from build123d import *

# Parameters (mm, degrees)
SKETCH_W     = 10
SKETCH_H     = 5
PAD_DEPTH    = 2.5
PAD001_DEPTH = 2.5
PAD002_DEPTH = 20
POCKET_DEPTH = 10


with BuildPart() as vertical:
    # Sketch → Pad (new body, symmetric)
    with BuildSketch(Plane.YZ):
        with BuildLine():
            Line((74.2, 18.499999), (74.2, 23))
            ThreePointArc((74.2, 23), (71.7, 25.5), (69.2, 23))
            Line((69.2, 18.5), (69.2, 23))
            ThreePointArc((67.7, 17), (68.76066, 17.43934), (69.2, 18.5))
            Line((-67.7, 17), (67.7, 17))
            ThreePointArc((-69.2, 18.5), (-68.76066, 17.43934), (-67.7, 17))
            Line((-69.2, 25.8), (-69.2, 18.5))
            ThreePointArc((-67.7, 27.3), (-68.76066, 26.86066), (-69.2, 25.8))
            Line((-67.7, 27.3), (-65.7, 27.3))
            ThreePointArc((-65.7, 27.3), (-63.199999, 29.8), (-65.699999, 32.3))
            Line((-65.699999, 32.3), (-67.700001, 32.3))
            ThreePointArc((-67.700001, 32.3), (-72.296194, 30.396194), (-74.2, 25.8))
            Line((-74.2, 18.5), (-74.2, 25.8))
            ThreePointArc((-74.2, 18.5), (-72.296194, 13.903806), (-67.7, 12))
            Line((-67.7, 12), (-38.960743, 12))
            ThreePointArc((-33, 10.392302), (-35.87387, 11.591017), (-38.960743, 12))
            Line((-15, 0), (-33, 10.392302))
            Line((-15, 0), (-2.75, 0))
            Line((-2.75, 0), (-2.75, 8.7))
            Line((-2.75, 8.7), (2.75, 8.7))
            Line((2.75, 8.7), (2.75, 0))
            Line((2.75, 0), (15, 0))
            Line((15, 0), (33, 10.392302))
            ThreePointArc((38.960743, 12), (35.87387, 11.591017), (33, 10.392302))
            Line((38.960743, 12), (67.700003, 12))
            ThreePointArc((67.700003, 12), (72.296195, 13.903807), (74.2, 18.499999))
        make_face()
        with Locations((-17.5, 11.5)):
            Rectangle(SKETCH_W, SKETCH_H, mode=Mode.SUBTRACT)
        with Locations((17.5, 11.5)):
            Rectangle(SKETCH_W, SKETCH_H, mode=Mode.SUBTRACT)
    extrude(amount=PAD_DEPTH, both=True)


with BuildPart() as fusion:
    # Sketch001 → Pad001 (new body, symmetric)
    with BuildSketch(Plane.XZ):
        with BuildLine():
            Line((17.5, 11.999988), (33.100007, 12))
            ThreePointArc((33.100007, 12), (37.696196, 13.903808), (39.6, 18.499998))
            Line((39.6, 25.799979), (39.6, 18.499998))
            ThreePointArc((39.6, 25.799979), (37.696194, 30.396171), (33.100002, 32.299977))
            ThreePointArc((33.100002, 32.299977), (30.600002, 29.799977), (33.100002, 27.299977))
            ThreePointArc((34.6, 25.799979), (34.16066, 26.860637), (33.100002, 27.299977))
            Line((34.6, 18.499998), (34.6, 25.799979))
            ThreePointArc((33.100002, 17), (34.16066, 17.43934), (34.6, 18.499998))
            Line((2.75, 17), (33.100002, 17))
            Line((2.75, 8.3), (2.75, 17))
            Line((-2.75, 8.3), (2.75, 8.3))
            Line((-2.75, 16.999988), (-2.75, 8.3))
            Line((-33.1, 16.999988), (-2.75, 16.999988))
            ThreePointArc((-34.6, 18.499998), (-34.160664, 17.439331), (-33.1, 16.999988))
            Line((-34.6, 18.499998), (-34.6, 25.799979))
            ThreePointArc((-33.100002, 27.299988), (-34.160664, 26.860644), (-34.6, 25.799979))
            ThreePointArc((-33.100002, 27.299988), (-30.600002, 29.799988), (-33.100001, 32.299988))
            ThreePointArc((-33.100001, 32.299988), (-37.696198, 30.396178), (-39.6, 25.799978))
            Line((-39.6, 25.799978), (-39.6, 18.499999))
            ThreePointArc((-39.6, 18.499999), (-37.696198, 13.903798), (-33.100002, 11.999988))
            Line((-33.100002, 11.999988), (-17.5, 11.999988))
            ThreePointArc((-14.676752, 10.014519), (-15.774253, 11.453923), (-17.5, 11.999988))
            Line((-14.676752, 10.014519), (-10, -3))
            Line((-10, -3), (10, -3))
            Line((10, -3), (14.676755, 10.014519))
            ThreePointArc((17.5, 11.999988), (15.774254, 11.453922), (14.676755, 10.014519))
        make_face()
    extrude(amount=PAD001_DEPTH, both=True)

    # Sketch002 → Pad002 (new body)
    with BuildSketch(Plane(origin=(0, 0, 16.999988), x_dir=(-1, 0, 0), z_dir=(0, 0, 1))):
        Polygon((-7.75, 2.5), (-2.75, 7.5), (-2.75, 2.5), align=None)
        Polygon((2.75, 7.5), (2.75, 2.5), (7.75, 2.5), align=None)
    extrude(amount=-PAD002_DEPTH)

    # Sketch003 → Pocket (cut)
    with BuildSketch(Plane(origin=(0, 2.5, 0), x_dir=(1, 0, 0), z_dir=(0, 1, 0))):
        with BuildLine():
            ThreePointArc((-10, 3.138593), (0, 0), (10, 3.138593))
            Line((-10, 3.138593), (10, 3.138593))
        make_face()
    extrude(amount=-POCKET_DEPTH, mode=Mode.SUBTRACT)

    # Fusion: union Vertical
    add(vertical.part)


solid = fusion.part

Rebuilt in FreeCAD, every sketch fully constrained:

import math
import FreeCAD as App
import Part
import Sketcher

V = App.Vector
Q = App.Units.Quantity


def add_polygon(sketch, points):
    """Adds a closed chain of lines whose ends are joined by coincident constraints."""
    first, n = sketch.GeometryCount, len(points)
    for a, b in zip(points, points[1:] + points[:1]):
        sketch.addGeometry(Part.LineSegment(App.Vector(*a, 0), App.Vector(*b, 0)), False)
    for i in range(n):
        sketch.addConstraint(Sketcher.Constraint("Coincident", first + i, 2, first + (i + 1) % n, 1))

doc = App.newDocument("Part")
body = doc.addObject("PartDesign::Body", "Body")

# Sketch on YZ plane
sketch1 = doc.addObject("Sketcher::SketchObject", "Sketch")
body.addObject(sketch1)
sketch1.AttachmentSupport = (doc.YZ_Plane, [""])
sketch1.MapMode = "FlatFace"
sketch1.addGeometry(Part.LineSegment(V(74.2, 18.5, 0), V(74.2, 23, 0)), False)  # 0
sketch1.addGeometry(Part.ArcOfCircle(Part.Circle(V(71.7, 23, 0), V(0, 0, 1), 2.5), math.radians(0), math.radians(180)), False)  # 1
sketch1.addGeometry(Part.LineSegment(V(69.2, 23, 0), V(69.2, 18.5, 0)), False)  # 2
sketch1.addGeometry(Part.ArcOfCircle(Part.Circle(V(67.7, 18.5, 0), V(0, 0, 1), 1.5), math.radians(-90), math.radians(0)), False)  # 3
sketch1.addGeometry(Part.LineSegment(V(67.7, 17, 0), V(-67.7, 17, 0)), False)  # 4
sketch1.addGeometry(Part.ArcOfCircle(Part.Circle(V(-67.7, 18.5, 0), V(0, 0, 1), 1.5), math.radians(-180), math.radians(-90)), False)  # 5
sketch1.addGeometry(Part.LineSegment(V(-69.2, 18.5, 0), V(-69.2, 25.8, 0)), False)  # 6
sketch1.addGeometry(Part.ArcOfCircle(Part.Circle(V(-67.7, 25.8, 0), V(0, 0, 1), 1.5), math.radians(90), math.radians(180)), False)  # 7
sketch1.addGeometry(Part.LineSegment(V(-67.7, 27.3, 0), V(-65.7, 27.3, 0)), False)  # 8
sketch1.addGeometry(Part.ArcOfCircle(Part.Circle(V(-65.7, 29.8, 0), V(0, 0, 1), 2.5), math.radians(-90), math.radians(90)), False)  # 9
sketch1.addGeometry(Part.LineSegment(V(-65.7, 32.3, 0), V(-67.7, 32.3, 0)), False)  # 10
sketch1.addGeometry(Part.ArcOfCircle(Part.Circle(V(-67.7, 25.8, 0), V(0, 0, 1), 6.5), math.radians(90), math.radians(180)), False)  # 11
sketch1.addGeometry(Part.LineSegment(V(-74.2, 25.8, 0), V(-74.2, 18.5, 0)), False)  # 12
sketch1.addGeometry(Part.ArcOfCircle(Part.Circle(V(-67.7, 18.5, 0), V(0, 0, 1), 6.5), math.radians(-180), math.radians(-90)), False)  # 13
sketch1.addGeometry(Part.LineSegment(V(-67.7, 12, 0), V(-39, 12, 0)), False)  # 14
sketch1.addGeometry(Part.ArcOfCircle(Part.Circle(V(-39, 0.1, 0), V(0, 0, 1), 11.9), math.radians(60), math.radians(90)), False)  # 15
sketch1.addGeometry(Part.LineSegment(V(-33, 10.4, 0), V(-15, 0, 0)), False)  # 16
sketch1.addGeometry(Part.LineSegment(V(-15, 0, 0), V(-2.8, 0, 0)), False)  # 17
sketch1.addGeometry(Part.LineSegment(V(-2.8, 0, 0), V(-2.8, 8.7, 0)), False)  # 18
sketch1.addGeometry(Part.LineSegment(V(-2.8, 8.7, 0), V(2.8, 8.7, 0)), False)  # 19
sketch1.addGeometry(Part.LineSegment(V(2.8, 8.7, 0), V(2.8, 0, 0)), False)  # 20
sketch1.addGeometry(Part.LineSegment(V(2.8, 0, 0), V(15, 0, 0)), False)  # 21
sketch1.addGeometry(Part.LineSegment(V(15, 0, 0), V(33, 10.4, 0)), False)  # 22
sketch1.addGeometry(Part.ArcOfCircle(Part.Circle(V(39, 0.1, 0), V(0, 0, 1), 11.9), math.radians(90), math.radians(120)), False)  # 23
sketch1.addGeometry(Part.LineSegment(V(39, 12, 0), V(67.7, 12, 0)), False)  # 24
sketch1.addGeometry(Part.ArcOfCircle(Part.Circle(V(67.7, 18.5, 0), V(0, 0, 1), 6.5), math.radians(-90), math.radians(0)), False)  # 25
add_polygon(sketch1, [(-12.5, 9), (-22.5, 9), (-22.5, 14), (-12.5, 14)])  # lines 26-29
add_polygon(sketch1, [(22.5, 9), (12.5, 9), (12.5, 14), (22.5, 14)])  # lines 30-33
sketch1.addConstraint(Sketcher.Constraint("Tangent", 0, 2, 1, 1))
sketch1.addConstraint(Sketcher.Constraint("Tangent", 1, 2, 2, 1))
sketch1.addConstraint(Sketcher.Constraint("Tangent", 2, 2, 3, 2))
sketch1.addConstraint(Sketcher.Constraint("Tangent", 3, 1, 4, 1))
sketch1.addConstraint(Sketcher.Constraint("Tangent", 4, 2, 5, 2))
sketch1.addConstraint(Sketcher.Constraint("Tangent", 5, 1, 6, 1))
sketch1.addConstraint(Sketcher.Constraint("Tangent", 6, 2, 7, 2))
sketch1.addConstraint(Sketcher.Constraint("Tangent", 7, 1, 8, 1))
sketch1.addConstraint(Sketcher.Constraint("Tangent", 8, 2, 9, 1))
sketch1.addConstraint(Sketcher.Constraint("Tangent", 9, 2, 10, 1))
sketch1.addConstraint(Sketcher.Constraint("Tangent", 10, 2, 11, 1))
sketch1.addConstraint(Sketcher.Constraint("Tangent", 11, 2, 12, 1))
sketch1.addConstraint(Sketcher.Constraint("Tangent", 12, 2, 13, 1))
sketch1.addConstraint(Sketcher.Constraint("Tangent", 13, 2, 14, 1))
sketch1.addConstraint(Sketcher.Constraint("Coincident", 14, 2, 15, 2))
sketch1.addConstraint(Sketcher.Constraint("Coincident", 15, 1, 16, 1))
sketch1.addConstraint(Sketcher.Constraint("Coincident", 16, 2, 17, 1))
sketch1.addConstraint(Sketcher.Constraint("Coincident", 17, 2, 18, 1))
sketch1.addConstraint(Sketcher.Constraint("Coincident", 18, 2, 19, 1))
sketch1.addConstraint(Sketcher.Constraint("Coincident", 19, 2, 20, 1))
sketch1.addConstraint(Sketcher.Constraint("Coincident", 20, 2, 21, 1))
sketch1.addConstraint(Sketcher.Constraint("Coincident", 21, 2, 22, 1))
sketch1.addConstraint(Sketcher.Constraint("Coincident", 22, 2, 23, 2))
sketch1.addConstraint(Sketcher.Constraint("Coincident", 23, 1, 24, 1))
sketch1.addConstraint(Sketcher.Constraint("Tangent", 24, 2, 25, 1))
sketch1.addConstraint(Sketcher.Constraint("Tangent", 25, 2, 0, 1))
sketch1.addConstraint(Sketcher.Constraint("Vertical", 0))
sketch1.addConstraint(Sketcher.Constraint("Vertical", 2))
sketch1.addConstraint(Sketcher.Constraint("Horizontal", 4))
sketch1.addConstraint(Sketcher.Constraint("Vertical", 6))
sketch1.addConstraint(Sketcher.Constraint("Horizontal", 8))
sketch1.addConstraint(Sketcher.Constraint("Horizontal", 10))
sketch1.addConstraint(Sketcher.Constraint("Vertical", 12))
sketch1.addConstraint(Sketcher.Constraint("Horizontal", 14))
sketch1.addConstraint(Sketcher.Constraint("Horizontal", 17))
sketch1.addConstraint(Sketcher.Constraint("Vertical", 18))
sketch1.addConstraint(Sketcher.Constraint("Horizontal", 19))
sketch1.addConstraint(Sketcher.Constraint("Vertical", 20))
sketch1.addConstraint(Sketcher.Constraint("Horizontal", 21))
sketch1.addConstraint(Sketcher.Constraint("Horizontal", 24))
sketch1.addConstraint(Sketcher.Constraint("Horizontal", 26))
sketch1.addConstraint(Sketcher.Constraint("Vertical", 27))
sketch1.addConstraint(Sketcher.Constraint("Horizontal", 28))
sketch1.addConstraint(Sketcher.Constraint("Vertical", 29))
sketch1.addConstraint(Sketcher.Constraint("Horizontal", 30))
sketch1.addConstraint(Sketcher.Constraint("Vertical", 31))
sketch1.addConstraint(Sketcher.Constraint("Horizontal", 32))
sketch1.addConstraint(Sketcher.Constraint("Vertical", 33))
sketch1.addConstraint(Sketcher.Constraint("Coincident", 11, 3, 7, 3))
sketch1.addConstraint(Sketcher.Constraint("Coincident", 13, 3, 5, 3))
sketch1.addConstraint(Sketcher.Constraint("Coincident", 25, 3, 3, 3))
sketch1.addConstraint(Sketcher.Constraint("Equal", 3, 5))
sketch1.addConstraint(Sketcher.Constraint("Equal", 5, 7))
sketch1.addConstraint(Sketcher.Constraint("Equal", 1, 9))
sketch1.addConstraint(Sketcher.Constraint("Equal", 15, 23))
sketch1.addConstraint(Sketcher.Constraint("Symmetric", 17, 2, 20, 2, -1, 1))
sketch1.addConstraint(Sketcher.Constraint("Symmetric", 16, 2, 21, 2, -2))
sketch1.addConstraint(Sketcher.Constraint("Symmetric", 15, 1, 22, 2, -2))
sketch1.addConstraint(Sketcher.Constraint("Symmetric", 29, 2, 30, 2, -2))
sketch1.addConstraint(Sketcher.Constraint("Symmetric", 27, 2, 32, 2, -2))
sketch1.addConstraint(Sketcher.Constraint("Radius", 1, 2.5))
sketch1.addConstraint(Sketcher.Constraint("Radius", 3, 1.500001))
sketch1.addConstraint(Sketcher.Constraint("DistanceX", 8, 1, 8, 2, 2.0))
sketch1.addConstraint(Sketcher.Constraint("DistanceX", 26, 2, 26, 1, 10.0))
sketch1.addConstraint(Sketcher.Constraint("DistanceY", 27, 1, 27, 2, 5.0))
sketch1.addConstraint(Sketcher.Constraint("Angle", 16, Q("-29.999993 deg")))
sketch1.addConstraint(Sketcher.Constraint("DistanceX", 4, 2, 4, 1, 135.4))
sketch1.addConstraint(Sketcher.Constraint("DistanceX", 19, 1, 19, 2, 5.5))
sketch1.addConstraint(Sketcher.Constraint("DistanceY", 0, 1, 0, 2, 4.500001))
sketch1.addConstraint(Sketcher.Constraint("DistanceY", 6, 1, 6, 2, 7.3))
sketch1.addConstraint(Sketcher.Constraint("DistanceY", 18, 1, 18, 2, 8.7))
sketch1.addConstraint(Sketcher.Constraint("DistanceY", -1, 1, 1, 3, 23.0))
sketch1.addConstraint(Sketcher.Constraint("DistanceX", 15, 1, -1, 1, 33.0))
sketch1.addConstraint(Sketcher.Constraint("DistanceX", 16, 2, -1, 1, 15.0))
sketch1.addConstraint(Sketcher.Constraint("DistanceY", -1, 1, 26, 2, 9.0))
sketch1.addConstraint(Sketcher.Constraint("DistanceX", -1, 1, 1, 3, 71.7))
sketch1.addConstraint(Sketcher.Constraint("DistanceX", 26, 2, -1, 1, 22.5))
sketch1.addConstraint(Sketcher.Constraint("Radius", 15, 11.854044))
sketch1.addConstraint(Sketcher.Constraint("DistanceX", 24, 1, 24, 2, 28.73926))
sketch1.addConstraint(Sketcher.Constraint("DistanceX", 14, 1, 14, 2, 28.739257))
pad1 = doc.addObject("PartDesign::Pad", "Pad")
body.addObject(pad1)
pad1.Profile = sketch1
pad1.Length = 5
pad1.Midplane = True
body2 = doc.addObject("PartDesign::Body", "Body001")
body2.AllowCompound = True

# Sketch on XZ plane
sketch2 = doc.addObject("Sketcher::SketchObject", "Sketch001")
body2.addObject(sketch2)
sketch2.AttachmentSupport = (doc.getObject("XZ_Plane001"), [""])
sketch2.MapMode = "FlatFace"
sketch2.addGeometry(Part.LineSegment(V(17.5, 11.999988, 0), V(33.100007, 12, 0)), False)
sketch2.addGeometry(Part.ArcOfCircle(Part.Circle(V(33.1, 18.5, 0), V(0, 0, 1), 6.5), math.radians(-89.999936), math.radians(-0.00002)), False)
sketch2.addGeometry(Part.LineSegment(V(39.6, 18.499998, 0), V(39.6, 25.799979, 0)), False)
sketch2.addGeometry(Part.ArcOfCircle(Part.Circle(V(33.1, 25.799977, 0), V(0, 0, 1), 6.5), math.radians(0.00002), math.radians(89.99998)), False)
sketch2.addGeometry(Part.ArcOfCircle(Part.Circle(V(33.100002, 29.799977, 0), V(0, 0, 1), 2.5), math.radians(90), math.radians(270)), False)
sketch2.addGeometry(Part.ArcOfCircle(Part.Circle(V(33.099999, 25.799976, 0), V(0, 0, 1), 1.500001), math.radians(0.000099), math.radians(89.999901)), False)
sketch2.addGeometry(Part.LineSegment(V(34.6, 25.799979, 0), V(34.6, 18.499998, 0)), False)
sketch2.addGeometry(Part.ArcOfCircle(Part.Circle(V(33.099999, 18.500001, 0), V(0, 0, 1), 1.500001), math.radians(-89.999901), math.radians(-0.000099)), False)
sketch2.addGeometry(Part.LineSegment(V(33.100002, 17, 0), V(2.75, 17, 0)), False)
sketch2.addGeometry(Part.LineSegment(V(2.75, 17, 0), V(2.75, 8.3, 0)), False)
sketch2.addGeometry(Part.LineSegment(V(2.75, 8.3, 0), V(-2.75, 8.3, 0)), False)
sketch2.addGeometry(Part.LineSegment(V(-2.75, 8.3, 0), V(-2.75, 16.999988, 0)), False)
sketch2.addGeometry(Part.LineSegment(V(-2.75, 16.999988, 0), V(-33.1, 16.999988, 0)), False)
sketch2.addGeometry(Part.ArcOfCircle(Part.Circle(V(-33.100001, 18.499987, 0), V(0, 0, 1), 1.499999), math.radians(179.999575), math.radians(270.000043)), False)
sketch2.addGeometry(Part.LineSegment(V(-34.6, 18.499998, 0), V(-34.6, 25.799979, 0)), False)
sketch2.addGeometry(Part.ArcOfCircle(Part.Circle(V(-33.099999, 25.799987, 0), V(0, 0, 1), 1.500001), math.radians(90.000099), math.radians(180.000321)), False)
sketch2.addGeometry(Part.ArcOfCircle(Part.Circle(V(-33.100002, 29.799988, 0), V(0, 0, 1), 2.5), math.radians(-90), math.radians(89.999977)), False)
sketch2.addGeometry(Part.ArcOfCircle(Part.Circle(V(-33.1, 25.799988, 0), V(0, 0, 1), 6.5), math.radians(90.000011), math.radians(180.000086)), False)
sketch2.addGeometry(Part.LineSegment(V(-39.6, 25.799978, 0), V(-39.6, 18.499999, 0)), False)
sketch2.addGeometry(Part.ArcOfCircle(Part.Circle(V(-33.1, 18.499988, 0), V(0, 0, 1), 6.5), math.radians(179.999905), math.radians(269.99998)), False)
sketch2.addGeometry(Part.LineSegment(V(-33.100002, 11.999988, 0), V(-17.5, 11.999988, 0)), False)
sketch2.addGeometry(Part.ArcOfCircle(Part.Circle(V(-17.500001, 8.999987, 0), V(0, 0, 1), 3.000001), math.radians(19.765864), math.radians(89.99999)), False)
sketch2.addGeometry(Part.LineSegment(V(-14.676752, 10.014519, 0), V(-10, -3, 0)), False)
sketch2.addGeometry(Part.LineSegment(V(-10, -3, 0), V(10, -3, 0)), False)
sketch2.addGeometry(Part.LineSegment(V(10, -3, 0), V(14.676755, 10.014519, 0)), False)
sketch2.addGeometry(Part.ArcOfCircle(Part.Circle(V(17.500002, 8.999988, 0), V(0, 0, 1), 3), math.radians(90.000047), math.radians(160.234156)), False)
sketch2.addConstraint(Sketcher.Constraint("Coincident", 0, 2, 1, 1))
sketch2.addConstraint(Sketcher.Constraint("Coincident", 1, 2, 2, 1))
sketch2.addConstraint(Sketcher.Constraint("Coincident", 2, 2, 3, 1))
sketch2.addConstraint(Sketcher.Constraint("Coincident", 3, 2, 4, 1))
sketch2.addConstraint(Sketcher.Constraint("Coincident", 4, 2, 5, 2))
sketch2.addConstraint(Sketcher.Constraint("Coincident", 5, 1, 6, 1))
sketch2.addConstraint(Sketcher.Constraint("Coincident", 6, 2, 7, 2))
sketch2.addConstraint(Sketcher.Constraint("Coincident", 7, 1, 8, 1))
sketch2.addConstraint(Sketcher.Constraint("Coincident", 8, 2, 9, 1))
sketch2.addConstraint(Sketcher.Constraint("Coincident", 9, 2, 10, 1))
sketch2.addConstraint(Sketcher.Constraint("Coincident", 10, 2, 11, 1))
sketch2.addConstraint(Sketcher.Constraint("Coincident", 11, 2, 12, 1))
sketch2.addConstraint(Sketcher.Constraint("Coincident", 12, 2, 13, 2))
sketch2.addConstraint(Sketcher.Constraint("Coincident", 13, 1, 14, 1))
sketch2.addConstraint(Sketcher.Constraint("Coincident", 14, 2, 15, 2))
sketch2.addConstraint(Sketcher.Constraint("Coincident", 15, 1, 16, 1))
sketch2.addConstraint(Sketcher.Constraint("Coincident", 16, 2, 17, 1))
sketch2.addConstraint(Sketcher.Constraint("Coincident", 17, 2, 18, 1))
sketch2.addConstraint(Sketcher.Constraint("Coincident", 18, 2, 19, 1))
sketch2.addConstraint(Sketcher.Constraint("Coincident", 19, 2, 20, 1))
sketch2.addConstraint(Sketcher.Constraint("Coincident", 20, 2, 21, 2))
sketch2.addConstraint(Sketcher.Constraint("Coincident", 21, 1, 22, 1))
sketch2.addConstraint(Sketcher.Constraint("Coincident", 22, 2, 23, 1))
sketch2.addConstraint(Sketcher.Constraint("Coincident", 23, 2, 24, 1))
sketch2.addConstraint(Sketcher.Constraint("Coincident", 24, 2, 25, 2))
sketch2.addConstraint(Sketcher.Constraint("Coincident", 25, 1, 0, 1))
sketch2.addConstraint(Sketcher.Constraint("Vertical", 2))
sketch2.addConstraint(Sketcher.Constraint("Vertical", 6))
sketch2.addConstraint(Sketcher.Constraint("Horizontal", 8))
sketch2.addConstraint(Sketcher.Constraint("Vertical", 9))
sketch2.addConstraint(Sketcher.Constraint("Horizontal", 10))
sketch2.addConstraint(Sketcher.Constraint("Vertical", 11))
sketch2.addConstraint(Sketcher.Constraint("Horizontal", 12))
sketch2.addConstraint(Sketcher.Constraint("Vertical", 14))
sketch2.addConstraint(Sketcher.Constraint("Vertical", 18))
sketch2.addConstraint(Sketcher.Constraint("Horizontal", 20))
sketch2.addConstraint(Sketcher.Constraint("Horizontal", 23))
sketch2.addConstraint(Sketcher.Constraint("Coincident", 5, 3, 3, 3))
sketch2.addConstraint(Sketcher.Constraint("Coincident", 7, 3, 1, 3))
sketch2.addConstraint(Sketcher.Constraint("Coincident", 17, 3, 15, 3))
sketch2.addConstraint(Sketcher.Constraint("Coincident", 19, 3, 13, 3))
sketch2.addConstraint(Sketcher.Constraint("Radius", 21, 3.000001))
sketch2.addConstraint(Sketcher.Constraint("Radius", 25, 3.0))
sketch2.addConstraint(Sketcher.Constraint("Radius", 1, 6.5))
sketch2.addConstraint(Sketcher.Constraint("Radius", 3, 6.5))
sketch2.addConstraint(Sketcher.Constraint("Radius", 4, 2.5))
sketch2.addConstraint(Sketcher.Constraint("Radius", 13, 1.499999))
sketch2.addConstraint(Sketcher.Constraint("Radius", 15, 1.500001))
sketch2.addConstraint(Sketcher.Constraint("Radius", 16, 2.5))
sketch2.addConstraint(Sketcher.Constraint("DistanceX", 23, 1, 23, 2, 20.0))
sketch2.addConstraint(Sketcher.Constraint("DistanceX", 10, 2, 10, 1, 5.5))
sketch2.addConstraint(Sketcher.Constraint("DistanceY", 9, 2, 9, 1, 8.7))
sketch2.addConstraint(Sketcher.Constraint("DistanceY", -1, 1, 0, 2, 12.0))
sketch2.addConstraint(Sketcher.Constraint("DistanceX", 22, 2, -1, 1, 10.0))
sketch2.addConstraint(Sketcher.Constraint("DistanceY", 22, 2, -1, 1, 3.0))
sketch2.addConstraint(Sketcher.Constraint("DistanceY", 25, 3, 11, 2, 8.0))
sketch2.addConstraint(Sketcher.Constraint("DistanceX", 12, 2, 12, 1, 30.35))
sketch2.addConstraint(Sketcher.Constraint("DistanceX", -1, 1, 1, 3, 33.1))
sketch2.addConstraint(Sketcher.Constraint("DistanceX", 13, 3, -1, 1, 33.100001))
sketch2.addConstraint(Sketcher.Constraint("DistanceX", 21, 3, -1, 1, 17.500001))
sketch2.addConstraint(Sketcher.Constraint("DistanceY", -1, 1, 1, 2, 18.499998))
sketch2.addConstraint(Sketcher.Constraint("DistanceY", -1, 1, 6, 2, 18.499998))
sketch2.addConstraint(Sketcher.Constraint("DistanceX", 12, 2, -1, 1, 33.1))
sketch2.addConstraint(Sketcher.Constraint("DistanceY", -1, 1, 13, 1, 18.499998))
sketch2.addConstraint(Sketcher.Constraint("DistanceX", 16, 2, -1, 1, 33.100001))
sketch2.addConstraint(Sketcher.Constraint("DistanceY", -1, 1, 18, 2, 18.499999))
sketch2.addConstraint(Sketcher.Constraint("DistanceX", 20, 2, -1, 1, 17.5))
sketch2.addConstraint(Sketcher.Constraint("DistanceX", -1, 1, 25, 1, 17.5))
sketch2.addConstraint(Sketcher.Constraint("DistanceY", 13, 3, 15, 3, 7.300001))
sketch2.addConstraint(Sketcher.Constraint("DistanceX", 15, 3, 4, 3, 66.200001))
sketch2.addConstraint(Sketcher.Constraint("DistanceX", 16, 3, 5, 3, 66.200001))
sketch2.addConstraint(Sketcher.Constraint("DistanceX", 25, 3, 4, 3, 15.6))
sketch2.addConstraint(Sketcher.Constraint("DistanceX", 4, 2, 5, 1, 1.499998))
sketch2.addConstraint(Sketcher.Constraint("DistanceY", 2, 1, 2, 2, 7.299981))
sketch2.addConstraint(Sketcher.Constraint("DistanceY", 6, 2, 6, 1, 7.299981))
sketch2.addConstraint(Sketcher.Constraint("DistanceY", 14, 1, 14, 2, 7.299981))
sketch2.addConstraint(Sketcher.Constraint("DistanceY", 18, 2, 18, 1, 7.299979))
sketch2.addConstraint(Sketcher.Constraint("DistanceX", 8, 2, 8, 1, 30.350002))
sketch2.addConstraint(Sketcher.Constraint("DistanceX", 20, 1, 20, 2, 15.600002))
sketch2.addConstraint(Sketcher.Constraint("DistanceY", 11, 1, 11, 2, 8.699988))
sketch2.addConstraint(Sketcher.Constraint("DistanceY", -1, 1, 21, 1, 10.014519))
sketch2.addConstraint(Sketcher.Constraint("DistanceY", -1, 1, 24, 2, 10.014519))
sketch2.addConstraint(Sketcher.Constraint("DistanceY", 13, 3, 5, 3, 7.29999))
sketch2.addConstraint(Sketcher.Constraint("Distance", 0, 15.600007))
sketch2.addConstraint(Sketcher.Constraint("DistanceX", -1, 1, 3, 2, 33.100002))
sketch2.addConstraint(Sketcher.Constraint("DistanceX", 15, 1, -1, 1, 33.100002))
pad2 = doc.addObject("PartDesign::Pad", "Pad001")
body2.addObject(pad2)
pad2.Profile = sketch2
pad2.Length = 5
pad2.Midplane = True

# Sketch on XY plane
sketch3 = doc.addObject("Sketcher::SketchObject", "Sketch002")
body2.addObject(sketch3)
sketch3.AttachmentSupport = (doc.getObject("XY_Plane001"), [""])
sketch3.MapMode = "FlatFace"
sketch3.AttachmentOffset = App.Placement(V(0, 0, 16.999988), App.Rotation())
add_polygon(sketch3, [(3, -8), (8, -2), (3, -2)])  # lines 0-2
add_polygon(sketch3, [(-3, -8), (-3, -2), (-8, -2)])  # lines 3-5
sketch3.addConstraint(Sketcher.Constraint("Horizontal", 1))
sketch3.addConstraint(Sketcher.Constraint("Vertical", 2))
sketch3.addConstraint(Sketcher.Constraint("Vertical", 3))
sketch3.addConstraint(Sketcher.Constraint("Horizontal", 4))
sketch3.addConstraint(Sketcher.Constraint("Symmetric", 1, 2, 3, 2, -2))
sketch3.addConstraint(Sketcher.Constraint("Perpendicular", 0, 5))
sketch3.addConstraint(Sketcher.Constraint("Horizontal", 2, 2, 5, 2))
sketch3.addConstraint(Sketcher.Constraint("Equal", 1, 4))
sketch3.addConstraint(Sketcher.Constraint("DistanceX", 1, 2, 1, 1, 5.0))
sketch3.addConstraint(Sketcher.Constraint("DistanceY", 0, 2, -1, 1, 2.5))
sketch3.addConstraint(Sketcher.Constraint("DistanceX", 3, 2, 1, 2, 5.5))
pad3 = doc.addObject("PartDesign::Pad", "Pad002")
body2.addObject(pad3)
pad3.Profile = sketch3
pad3.Length = 20
pad3.Reversed = True

# Sketch on XZ plane
sketch4 = doc.addObject("Sketcher::SketchObject", "Sketch003")
body2.addObject(sketch4)
sketch4.AttachmentSupport = (doc.getObject("XZ_Plane001"), [""])
sketch4.MapMode = "FlatFace"
sketch4.AttachmentOffset = App.Placement(V(0, 0, -2.5), App.Rotation())
sketch4.addGeometry(Part.ArcOfCircle(Part.Circle(V(0, -18, 0), V(0, 0, 1), 18), math.radians(55), math.radians(125)), False)
sketch4.addGeometry(Part.LineSegment(V(10, -3, 0), V(-10, -3, 0)), False)
sketch4.addConstraint(Sketcher.Constraint("Coincident", 0, 1, 1, 1))
sketch4.addConstraint(Sketcher.Constraint("Coincident", 1, 2, 0, 2))
sketch4.addConstraint(Sketcher.Constraint("Horizontal", 1))
sketch4.addConstraint(Sketcher.Constraint("PointOnObject", 0, 3, -2))
sketch4.addConstraint(Sketcher.Constraint("Radius", 0, 17.500002))
sketch4.addConstraint(Sketcher.Constraint("DistanceX", 1, 2, 1, 1, 20.0))
sketch4.addConstraint(Sketcher.Constraint("DistanceY", 0, 3, -1, 1, 17.500002))
pocket1 = doc.addObject("PartDesign::Pocket", "Pocket")
body2.addObject(pocket1)
pocket1.Profile = sketch4
pocket1.Length = 10
pocket1.Reversed = True
doc.recompute()

boolean = doc.addObject("PartDesign::Boolean", "Boolean")
body2.addObject(boolean)
boolean.Type = "Fuse"
boolean.addObjects([body])

doc.recompute()
